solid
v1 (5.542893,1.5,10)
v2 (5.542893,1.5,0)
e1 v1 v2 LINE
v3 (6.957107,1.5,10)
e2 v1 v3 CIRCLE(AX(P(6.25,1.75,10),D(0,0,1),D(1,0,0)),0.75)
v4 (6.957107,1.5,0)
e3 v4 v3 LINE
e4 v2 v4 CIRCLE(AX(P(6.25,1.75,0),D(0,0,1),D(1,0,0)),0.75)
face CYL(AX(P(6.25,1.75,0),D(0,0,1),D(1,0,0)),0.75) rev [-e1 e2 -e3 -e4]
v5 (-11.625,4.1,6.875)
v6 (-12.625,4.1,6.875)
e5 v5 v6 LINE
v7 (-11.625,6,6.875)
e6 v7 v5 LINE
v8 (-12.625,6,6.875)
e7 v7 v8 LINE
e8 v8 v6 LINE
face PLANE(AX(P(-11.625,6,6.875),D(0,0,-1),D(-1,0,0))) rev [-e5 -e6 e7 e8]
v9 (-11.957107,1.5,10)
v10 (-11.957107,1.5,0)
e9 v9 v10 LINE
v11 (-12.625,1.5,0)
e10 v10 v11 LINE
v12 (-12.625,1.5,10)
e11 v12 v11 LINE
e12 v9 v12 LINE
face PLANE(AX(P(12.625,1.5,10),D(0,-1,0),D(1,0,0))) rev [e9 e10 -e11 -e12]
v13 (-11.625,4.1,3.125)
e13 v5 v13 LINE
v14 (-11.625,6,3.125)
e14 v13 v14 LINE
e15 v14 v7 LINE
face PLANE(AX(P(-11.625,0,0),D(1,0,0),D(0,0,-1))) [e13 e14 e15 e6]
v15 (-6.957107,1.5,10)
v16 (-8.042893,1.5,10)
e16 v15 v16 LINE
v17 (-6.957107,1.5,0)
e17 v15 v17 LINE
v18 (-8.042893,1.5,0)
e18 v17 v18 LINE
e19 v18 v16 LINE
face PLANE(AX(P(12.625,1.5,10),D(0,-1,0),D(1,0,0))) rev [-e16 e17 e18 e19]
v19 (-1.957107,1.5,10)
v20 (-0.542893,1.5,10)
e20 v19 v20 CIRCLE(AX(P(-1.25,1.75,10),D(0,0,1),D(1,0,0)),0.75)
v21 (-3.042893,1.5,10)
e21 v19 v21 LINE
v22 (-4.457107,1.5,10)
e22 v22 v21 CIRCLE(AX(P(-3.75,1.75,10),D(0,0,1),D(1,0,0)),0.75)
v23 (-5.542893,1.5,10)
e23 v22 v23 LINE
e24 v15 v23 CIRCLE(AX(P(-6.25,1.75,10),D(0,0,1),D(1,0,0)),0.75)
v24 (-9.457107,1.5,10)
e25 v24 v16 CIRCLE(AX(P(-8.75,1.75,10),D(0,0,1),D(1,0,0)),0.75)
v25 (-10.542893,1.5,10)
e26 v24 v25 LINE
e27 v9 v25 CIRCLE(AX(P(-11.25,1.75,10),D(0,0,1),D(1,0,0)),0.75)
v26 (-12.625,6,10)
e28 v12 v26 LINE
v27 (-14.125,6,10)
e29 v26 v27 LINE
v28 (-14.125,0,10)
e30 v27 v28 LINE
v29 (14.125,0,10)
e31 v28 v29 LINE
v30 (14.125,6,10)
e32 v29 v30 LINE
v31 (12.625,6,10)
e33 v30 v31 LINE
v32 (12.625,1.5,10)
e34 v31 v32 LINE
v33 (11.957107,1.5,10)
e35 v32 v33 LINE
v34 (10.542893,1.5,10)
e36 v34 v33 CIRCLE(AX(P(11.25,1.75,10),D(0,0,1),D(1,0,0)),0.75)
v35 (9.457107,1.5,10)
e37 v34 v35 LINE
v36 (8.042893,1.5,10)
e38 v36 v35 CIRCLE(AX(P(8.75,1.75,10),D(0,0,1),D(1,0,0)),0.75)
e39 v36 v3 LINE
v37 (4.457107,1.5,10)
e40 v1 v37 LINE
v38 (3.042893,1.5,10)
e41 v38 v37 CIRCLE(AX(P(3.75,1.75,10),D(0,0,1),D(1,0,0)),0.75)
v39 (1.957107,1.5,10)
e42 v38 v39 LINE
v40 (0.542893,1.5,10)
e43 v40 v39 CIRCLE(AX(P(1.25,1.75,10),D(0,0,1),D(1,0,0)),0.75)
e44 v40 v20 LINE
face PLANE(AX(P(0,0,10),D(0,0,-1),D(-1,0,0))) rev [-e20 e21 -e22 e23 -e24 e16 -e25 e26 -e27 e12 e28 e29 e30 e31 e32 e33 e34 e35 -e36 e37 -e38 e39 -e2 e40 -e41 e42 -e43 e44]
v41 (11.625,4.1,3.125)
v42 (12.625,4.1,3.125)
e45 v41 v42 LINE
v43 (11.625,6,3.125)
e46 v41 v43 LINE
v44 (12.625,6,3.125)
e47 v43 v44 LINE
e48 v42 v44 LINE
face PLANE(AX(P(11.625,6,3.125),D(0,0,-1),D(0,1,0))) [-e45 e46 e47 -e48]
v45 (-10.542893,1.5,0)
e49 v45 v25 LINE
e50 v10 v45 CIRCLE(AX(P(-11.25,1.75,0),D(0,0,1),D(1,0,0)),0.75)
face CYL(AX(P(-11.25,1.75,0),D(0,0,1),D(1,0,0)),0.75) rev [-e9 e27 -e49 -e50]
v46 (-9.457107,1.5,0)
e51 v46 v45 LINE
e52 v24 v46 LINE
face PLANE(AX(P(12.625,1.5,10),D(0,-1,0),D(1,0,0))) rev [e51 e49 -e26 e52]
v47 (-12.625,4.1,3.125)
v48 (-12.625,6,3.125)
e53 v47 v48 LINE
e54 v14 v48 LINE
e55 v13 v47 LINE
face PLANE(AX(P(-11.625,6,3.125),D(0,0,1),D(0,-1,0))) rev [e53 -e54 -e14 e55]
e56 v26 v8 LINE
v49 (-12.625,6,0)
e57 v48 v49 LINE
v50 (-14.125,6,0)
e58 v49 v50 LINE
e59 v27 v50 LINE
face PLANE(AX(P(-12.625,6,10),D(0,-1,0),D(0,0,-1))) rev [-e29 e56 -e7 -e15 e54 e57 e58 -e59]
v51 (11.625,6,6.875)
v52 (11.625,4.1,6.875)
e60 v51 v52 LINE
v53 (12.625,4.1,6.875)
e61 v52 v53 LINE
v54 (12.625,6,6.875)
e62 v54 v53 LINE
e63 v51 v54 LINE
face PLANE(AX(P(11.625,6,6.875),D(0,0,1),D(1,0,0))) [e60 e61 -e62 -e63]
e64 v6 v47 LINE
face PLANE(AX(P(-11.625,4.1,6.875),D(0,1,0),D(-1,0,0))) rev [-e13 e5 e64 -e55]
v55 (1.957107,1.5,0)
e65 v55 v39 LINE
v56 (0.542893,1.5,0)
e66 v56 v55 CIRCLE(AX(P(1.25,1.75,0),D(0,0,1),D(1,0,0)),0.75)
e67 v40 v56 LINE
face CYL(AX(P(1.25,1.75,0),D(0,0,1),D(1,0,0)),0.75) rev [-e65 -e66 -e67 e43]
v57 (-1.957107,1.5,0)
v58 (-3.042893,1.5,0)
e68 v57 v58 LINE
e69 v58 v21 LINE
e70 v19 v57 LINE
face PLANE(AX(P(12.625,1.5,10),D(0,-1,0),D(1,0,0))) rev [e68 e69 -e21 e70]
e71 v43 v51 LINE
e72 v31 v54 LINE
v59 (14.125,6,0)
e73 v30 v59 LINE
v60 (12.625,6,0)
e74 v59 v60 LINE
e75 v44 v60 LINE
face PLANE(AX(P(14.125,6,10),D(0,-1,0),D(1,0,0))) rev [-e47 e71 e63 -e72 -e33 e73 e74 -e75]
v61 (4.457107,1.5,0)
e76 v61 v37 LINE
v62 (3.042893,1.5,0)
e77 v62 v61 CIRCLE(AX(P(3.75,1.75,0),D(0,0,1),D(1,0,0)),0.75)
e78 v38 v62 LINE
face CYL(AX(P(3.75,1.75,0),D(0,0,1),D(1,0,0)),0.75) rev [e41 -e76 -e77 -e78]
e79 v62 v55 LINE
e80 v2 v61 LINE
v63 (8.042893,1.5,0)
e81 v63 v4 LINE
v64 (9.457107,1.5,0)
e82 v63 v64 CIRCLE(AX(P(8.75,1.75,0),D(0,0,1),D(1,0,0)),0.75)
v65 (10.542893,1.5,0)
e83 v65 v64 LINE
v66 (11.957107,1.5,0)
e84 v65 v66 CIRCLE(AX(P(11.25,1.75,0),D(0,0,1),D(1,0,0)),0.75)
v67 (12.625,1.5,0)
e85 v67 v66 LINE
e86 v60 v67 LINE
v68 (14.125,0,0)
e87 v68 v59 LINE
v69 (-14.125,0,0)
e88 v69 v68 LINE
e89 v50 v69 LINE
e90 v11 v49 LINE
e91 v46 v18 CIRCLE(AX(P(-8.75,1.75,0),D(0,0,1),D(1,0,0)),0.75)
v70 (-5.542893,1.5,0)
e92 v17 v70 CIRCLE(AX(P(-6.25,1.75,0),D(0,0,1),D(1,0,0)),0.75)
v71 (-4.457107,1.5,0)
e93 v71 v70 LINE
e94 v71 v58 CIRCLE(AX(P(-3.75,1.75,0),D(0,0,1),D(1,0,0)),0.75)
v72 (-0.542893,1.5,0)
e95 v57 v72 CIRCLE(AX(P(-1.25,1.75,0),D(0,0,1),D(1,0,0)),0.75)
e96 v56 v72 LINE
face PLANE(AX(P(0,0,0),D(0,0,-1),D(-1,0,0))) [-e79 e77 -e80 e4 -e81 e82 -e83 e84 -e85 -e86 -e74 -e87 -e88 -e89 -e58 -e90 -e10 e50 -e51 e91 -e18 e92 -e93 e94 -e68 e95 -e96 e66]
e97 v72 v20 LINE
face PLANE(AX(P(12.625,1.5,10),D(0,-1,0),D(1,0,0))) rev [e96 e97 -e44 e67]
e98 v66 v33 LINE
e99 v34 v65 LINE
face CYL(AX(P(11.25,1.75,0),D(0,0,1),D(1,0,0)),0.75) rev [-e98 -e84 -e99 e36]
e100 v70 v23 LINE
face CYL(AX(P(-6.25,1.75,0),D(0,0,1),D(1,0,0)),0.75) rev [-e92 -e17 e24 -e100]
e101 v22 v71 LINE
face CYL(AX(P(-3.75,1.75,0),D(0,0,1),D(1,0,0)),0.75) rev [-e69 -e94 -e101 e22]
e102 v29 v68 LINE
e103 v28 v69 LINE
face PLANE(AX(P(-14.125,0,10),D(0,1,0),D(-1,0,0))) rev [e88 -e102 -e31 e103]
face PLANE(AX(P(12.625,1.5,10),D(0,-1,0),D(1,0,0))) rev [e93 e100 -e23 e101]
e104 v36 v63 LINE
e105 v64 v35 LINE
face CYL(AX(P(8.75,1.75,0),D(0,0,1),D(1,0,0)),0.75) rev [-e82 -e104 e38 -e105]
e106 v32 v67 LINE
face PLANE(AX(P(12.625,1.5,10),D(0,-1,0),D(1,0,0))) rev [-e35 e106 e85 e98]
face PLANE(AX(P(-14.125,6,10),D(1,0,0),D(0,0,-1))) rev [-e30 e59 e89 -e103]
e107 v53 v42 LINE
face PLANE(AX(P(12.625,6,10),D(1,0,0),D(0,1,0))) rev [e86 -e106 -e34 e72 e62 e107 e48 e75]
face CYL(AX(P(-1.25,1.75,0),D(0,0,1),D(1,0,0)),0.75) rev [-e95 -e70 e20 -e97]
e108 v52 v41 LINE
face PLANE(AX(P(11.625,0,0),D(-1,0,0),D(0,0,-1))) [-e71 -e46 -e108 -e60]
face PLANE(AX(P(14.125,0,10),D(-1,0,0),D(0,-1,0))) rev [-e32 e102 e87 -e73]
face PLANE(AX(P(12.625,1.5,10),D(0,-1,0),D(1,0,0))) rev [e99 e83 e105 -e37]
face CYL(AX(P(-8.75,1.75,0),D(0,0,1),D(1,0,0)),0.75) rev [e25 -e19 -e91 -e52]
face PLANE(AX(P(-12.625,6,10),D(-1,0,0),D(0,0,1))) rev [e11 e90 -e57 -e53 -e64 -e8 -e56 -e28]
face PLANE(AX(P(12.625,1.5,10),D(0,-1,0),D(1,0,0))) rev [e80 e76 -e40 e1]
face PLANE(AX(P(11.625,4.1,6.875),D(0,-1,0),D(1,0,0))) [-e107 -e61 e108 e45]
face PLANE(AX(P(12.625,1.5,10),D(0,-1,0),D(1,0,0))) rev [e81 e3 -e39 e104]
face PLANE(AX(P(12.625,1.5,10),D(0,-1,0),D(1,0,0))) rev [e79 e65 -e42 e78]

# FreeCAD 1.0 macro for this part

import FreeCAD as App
import Part
import Sketcher

V = App.Vector

doc = App.newDocument("Part")
body = doc.addObject("PartDesign::Body", "Body")

# Sketch on XY plane
sketch1 = body.newObject("Sketcher::SketchObject", "Sketch")
sketch1.AttachmentSupport = (doc.getObject("XY_Plane"), [""])
sketch1.MapMode = "FlatFace"
sketch1.addGeometry([
    Part.LineSegment(V(-12.6, 6, 0), V(-14.1, 6, 0)),  # 0
    Part.LineSegment(V(-14.1, 6, 0), V(-14.1, 0, 0)),  # 1
    Part.LineSegment(V(-14.1, 0, 0), V(14.1, 0, 0)),  # 2
    Part.LineSegment(V(14.1, 0, 0), V(14.1, 6, 0)),  # 3
    Part.LineSegment(V(14.1, 6, 0), V(12.6, 6, 0)),  # 4
    Part.LineSegment(V(12.6, 6, 0), V(12.6, 1.5, 0)),  # 5
    Part.LineSegment(V(12.6, 1.5, 0), V(-12.6, 1.5, 0)),  # 6
    Part.LineSegment(V(-12.6, 1.5, 0), V(-12.6, 6, 0)),  # 7
], False)
sketch1.addConstraint([
    Sketcher.Constraint("Coincident", 0, 2, 1, 1),
    Sketcher.Constraint("Coincident", 1, 2, 2, 1),
    Sketcher.Constraint("Coincident", 2, 2, 3, 1),
    Sketcher.Constraint("Coincident", 3, 2, 4, 1),
    Sketcher.Constraint("Coincident", 4, 2, 5, 1),
    Sketcher.Constraint("Coincident", 5, 2, 6, 1),
    Sketcher.Constraint("Coincident", 6, 2, 7, 1),
    Sketcher.Constraint("Coincident", 7, 2, 0, 1),
    Sketcher.Constraint("Horizontal", 0),
    Sketcher.Constraint("Vertical", 1),
    Sketcher.Constraint("Horizontal", 2),
    Sketcher.Constraint("Vertical", 3),
    Sketcher.Constraint("Horizontal", 4),
    Sketcher.Constraint("Vertical", 5),
    Sketcher.Constraint("Horizontal", 6),
    Sketcher.Constraint("Vertical", 7),
    Sketcher.Constraint("Symmetric", 1, 2, 2, 2, -1, 1),
    Sketcher.Constraint("Symmetric", 4, 2, 7, 2, -2),
    Sketcher.Constraint("DistanceY", 1, 2, 1, 1, 6.0),
    Sketcher.Constraint("DistanceX", 0, 2, 0, 1, 1.5),
    Sketcher.Constraint("DistanceY", 5, 2, 5, 1, 4.5),
    Sketcher.Constraint("DistanceX", 2, 1, 2, 2, 28.25),
])
pad1 = body.newObject("PartDesign::Pad", "Pad")
pad1.Profile = sketch1
pad1.Length = 10

# Sketch on XY plane
sketch2 = body.newObject("Sketcher::SketchObject", "Sketch001")
sketch2.AttachmentSupport = (doc.getObject("XY_Plane"), [""])
sketch2.MapMode = "FlatFace"
sketch2.AttachmentOffset = App.Placement(V(0, 0, 10), App.Rotation())
sketch2.addGeometry([
    Part.Circle(V(-11.2, 1.8, 0), V(0, 0, 1), 0.8),  # 0
    Part.Circle(V(-8.8, 1.8, 0), V(0, 0, 1), 0.8),  # 1
    Part.Circle(V(-6.2, 1.8, 0), V(0, 0, 1), 0.8),  # 2
    Part.Circle(V(-3.8, 1.8, 0), V(0, 0, 1), 0.8),  # 3
    Part.Circle(V(-1.2, 1.8, 0), V(0, 0, 1), 0.8),  # 4
    Part.Circle(V(1.2, 1.8, 0), V(0, 0, 1), 0.8),  # 5
    Part.Circle(V(3.8, 1.8, 0), V(0, 0, 1), 0.8),  # 6
    Part.Circle(V(6.2, 1.8, 0), V(0, 0, 1), 0.8),  # 7
    Part.Circle(V(8.8, 1.8, 0), V(0, 0, 1), 0.8),  # 8
    Part.Circle(V(11.2, 1.8, 0), V(0, 0, 1), 0.8),  # 9
], False)
sketch2.addConstraint([
    Sketcher.Constraint("Equal", 0, 1),
    Sketcher.Constraint("Equal", 1, 2),
    Sketcher.Constraint("Equal", 2, 3),
    Sketcher.Constraint("Equal", 3, 4),
    Sketcher.Constraint("Equal", 4, 5),
    Sketcher.Constraint("Equal", 5, 6),
    Sketcher.Constraint("Equal", 6, 7),
    Sketcher.Constraint("Equal", 7, 8),
    Sketcher.Constraint("Equal", 8, 9),
    Sketcher.Constraint("Symmetric", 4, 3, 5, 3, -2),
    Sketcher.Constraint("Symmetric", 3, 3, 6, 3, -2),
    Sketcher.Constraint("Symmetric", 2, 3, 7, 3, -2),
    Sketcher.Constraint("Symmetric", 1, 3, 8, 3, -2),
    Sketcher.Constraint("Symmetric", 0, 3, 9, 3, -2),
    Sketcher.Constraint("Horizontal", 0, 3, 1, 3),
    Sketcher.Constraint("Horizontal", 1, 3, 2, 3),
    Sketcher.Constraint("Horizontal", 2, 3, 3, 3),
    Sketcher.Constraint("Horizontal", 3, 3, 4, 3),
    Sketcher.Constraint("Diameter", 0, 1.5),
    Sketcher.Constraint("DistanceX", 0, 3, 2, 3, 5.0),
    Sketcher.Constraint("DistanceX", 1, 3, 3, 3, 5.0),
    Sketcher.Constraint("DistanceX", 2, 3, 4, 3, 5.0),
    Sketcher.Constraint("DistanceX", 3, 3, 5, 3, 5.0),
    Sketcher.Constraint("DistanceX", 0, 3, 1, 3, 2.5),
    Sketcher.Constraint("DistanceY", -1, 1, 0, 3, 1.75),
])
pocket1 = body.newObject("PartDesign::Pocket", "Pocket")
pocket1.Profile = sketch2
pocket1.Type = "ThroughAll"

# Sketch on YZ plane
sketch3 = body.newObject("Sketcher::SketchObject", "Sketch002")
sketch3.AttachmentSupport = (doc.getObject("YZ_Plane"), [""])
sketch3.MapMode = "FlatFace"
sketch3.AttachmentOffset = App.Placement(V(0, 0, -12.625), App.Rotation())
sketch3.addGeometry([
    Part.LineSegment(V(6, 6.9, 0), V(4.1, 6.9, 0)),
    Part.LineSegment(V(4.1, 6.9, 0), V(4.1, 3.1, 0)),
    Part.LineSegment(V(4.1, 3.1, 0), V(6, 3.1, 0)),
    Part.LineSegment(V(6, 3.1, 0), V(6, 6.9, 0)),
], False)
sketch3.addConstraint([
    Sketcher.Constraint("Coincident", 0, 2, 1, 1),
    Sketcher.Constraint("Coincident", 1, 2, 2, 1),
    Sketcher.Constraint("Coincident", 2, 2, 3, 1),
    Sketcher.Constraint("Coincident", 3, 2, 0, 1),
    Sketcher.Constraint("Horizontal", 0),
    Sketcher.Constraint("Vertical", 1),
    Sketcher.Constraint("Horizontal", 2),
    Sketcher.Constraint("Vertical", 3),
    Sketcher.Constraint("DistanceX", 0, 2, 0, 1, 1.9),
    Sketcher.Constraint("DistanceX", -1, 1, 2, 2, 6.0),
    Sketcher.Constraint("DistanceY", 1, 2, 1, 1, 3.75),
    Sketcher.Constraint("DistanceY", -1, 1, 0, 2, 6.875),
])
pad2 = body.newObject("PartDesign::Pad", "Pad001")
pad2.Profile = sketch3
pad2.Length = 1
doc.recompute()

mirrored = body.newObject("PartDesign::Mirrored", "Mirrored")
mirrored.Originals = [pad2]
mirrored.MirrorPlane = (doc.getObject("YZ_Plane"), [""])
body.Tip = mirrored

doc.recompute()
